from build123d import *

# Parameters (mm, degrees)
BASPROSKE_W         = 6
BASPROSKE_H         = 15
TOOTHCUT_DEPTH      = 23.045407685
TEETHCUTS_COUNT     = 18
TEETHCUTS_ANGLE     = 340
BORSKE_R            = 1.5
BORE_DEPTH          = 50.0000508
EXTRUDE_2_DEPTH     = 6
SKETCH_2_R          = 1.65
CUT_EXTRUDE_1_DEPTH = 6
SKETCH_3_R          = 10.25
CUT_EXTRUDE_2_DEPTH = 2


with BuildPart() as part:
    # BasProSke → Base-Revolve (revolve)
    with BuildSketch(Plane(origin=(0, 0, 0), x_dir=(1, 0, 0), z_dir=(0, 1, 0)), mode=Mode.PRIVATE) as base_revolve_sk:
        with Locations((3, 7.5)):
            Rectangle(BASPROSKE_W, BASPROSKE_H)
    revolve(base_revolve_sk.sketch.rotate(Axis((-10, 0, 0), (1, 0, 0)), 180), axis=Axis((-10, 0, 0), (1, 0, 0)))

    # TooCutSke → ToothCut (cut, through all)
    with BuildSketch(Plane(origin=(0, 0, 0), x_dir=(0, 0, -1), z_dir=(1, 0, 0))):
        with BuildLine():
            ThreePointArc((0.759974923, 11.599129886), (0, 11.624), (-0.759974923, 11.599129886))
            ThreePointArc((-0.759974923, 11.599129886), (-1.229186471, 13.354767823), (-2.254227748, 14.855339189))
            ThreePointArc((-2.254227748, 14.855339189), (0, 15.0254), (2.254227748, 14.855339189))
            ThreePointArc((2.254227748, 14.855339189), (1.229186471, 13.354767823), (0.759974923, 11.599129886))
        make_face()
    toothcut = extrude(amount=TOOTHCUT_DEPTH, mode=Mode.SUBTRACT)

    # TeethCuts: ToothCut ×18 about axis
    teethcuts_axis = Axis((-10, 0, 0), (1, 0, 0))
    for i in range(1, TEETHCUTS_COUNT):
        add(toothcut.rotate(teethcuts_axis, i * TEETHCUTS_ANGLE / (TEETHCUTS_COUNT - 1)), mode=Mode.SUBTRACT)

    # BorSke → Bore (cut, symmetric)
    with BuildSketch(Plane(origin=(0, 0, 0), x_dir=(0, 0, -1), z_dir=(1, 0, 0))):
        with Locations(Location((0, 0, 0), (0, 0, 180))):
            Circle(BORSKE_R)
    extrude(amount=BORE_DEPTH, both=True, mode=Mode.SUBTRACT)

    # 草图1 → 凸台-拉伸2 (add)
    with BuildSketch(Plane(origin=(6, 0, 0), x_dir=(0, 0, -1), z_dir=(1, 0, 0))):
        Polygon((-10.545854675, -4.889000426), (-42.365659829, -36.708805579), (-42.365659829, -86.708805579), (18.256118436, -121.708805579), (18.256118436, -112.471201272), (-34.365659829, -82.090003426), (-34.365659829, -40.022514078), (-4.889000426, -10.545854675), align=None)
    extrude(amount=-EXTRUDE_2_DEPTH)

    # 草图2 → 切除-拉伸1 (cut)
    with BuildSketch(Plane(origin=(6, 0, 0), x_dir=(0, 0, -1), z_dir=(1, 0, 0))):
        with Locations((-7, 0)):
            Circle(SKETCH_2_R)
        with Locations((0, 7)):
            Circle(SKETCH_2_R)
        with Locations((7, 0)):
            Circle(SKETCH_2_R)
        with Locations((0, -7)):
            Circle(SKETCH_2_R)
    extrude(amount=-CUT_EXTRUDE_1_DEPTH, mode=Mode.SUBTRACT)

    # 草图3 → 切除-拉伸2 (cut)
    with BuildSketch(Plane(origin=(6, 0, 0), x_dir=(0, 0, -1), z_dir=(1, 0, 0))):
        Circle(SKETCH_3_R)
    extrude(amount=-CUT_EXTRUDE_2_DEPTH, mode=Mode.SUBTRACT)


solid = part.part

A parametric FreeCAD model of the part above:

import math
import FreeCAD as App
import Part
import Sketcher
Q = App.Units.Quantity

doc = App.newDocument("Part")
body = doc.addObject("PartDesign::Body", "Body")

sketch1 = body.newObject("Sketcher::SketchObject", "Sketch")
sketch1.AttachmentSupport = (doc.getObject("XZ_Plane"), [""])
sketch1.MapMode = "FlatFace"
sketch1.addGeometry(Part.LineSegment(App.Vector(0, -15, 0), App.Vector(0, 0, 0)), False)
sketch1.addGeometry(Part.LineSegment(App.Vector(0, 0, 0), App.Vector(6, 0, 0)), False)
sketch1.addGeometry(Part.LineSegment(App.Vector(6, 0, 0), App.Vector(6, -15, 0)), False)
sketch1.addGeometry(Part.LineSegment(App.Vector(6, -15, 0), App.Vector(0, -15, 0)), False)
sketch1.addConstraint(Sketcher.Constraint("Coincident", 0, 2, 1, 1))
sketch1.addConstraint(Sketcher.Constraint("Coincident", 1, 2, 2, 1))
sketch1.addConstraint(Sketcher.Constraint("Coincident", 2, 2, 3, 1))
sketch1.addConstraint(Sketcher.Constraint("Coincident", 3, 2, 0, 1))
sketch1.addConstraint(Sketcher.Constraint("Vertical", 0))
sketch1.addConstraint(Sketcher.Constraint("Horizontal", 1))
sketch1.addConstraint(Sketcher.Constraint("Vertical", 2))
sketch1.addConstraint(Sketcher.Constraint("Horizontal", 3))
sketch1.addConstraint(Sketcher.Constraint("Coincident", 0, 2, -1, 1))
sketch1.addConstraint(Sketcher.Constraint("DistanceX", 1, 1, 1, 2, Q("6 mm")))
sketch1.addConstraint(Sketcher.Constraint("DistanceY", 0, 1, 0, 2, Q("15 mm")))
revolution = body.newObject("PartDesign::Revolution", "Revolution")
revolution.Profile = sketch1
revolution.ReferenceAxis = (sketch1, ["H_Axis"])
revolution.Angle = 360

sketch2 = body.newObject("Sketcher::SketchObject", "Sketch001")
sketch2.AttachmentSupport = (doc.getObject("YZ_Plane"), [""])
sketch2.MapMode = "FlatFace"
sketch2.addGeometry(Part.ArcOfCircle(Part.Circle(App.Vector(0, 0, 0), App.Vector(0, 0, 1), 11.624), math.radians(-3.748661), math.radians(3.748661)), False)
sketch2.addGeometry(Part.ArcOfCircle(Part.Circle(App.Vector(11.102561, -6.137095, 0), App.Vector(0, 0, 1), 5.4), math.radians(45.976059), math.radians(84.723789)), False)
sketch2.addGeometry(Part.ArcOfCircle(Part.Circle(App.Vector(0, 0, 0), App.Vector(0, 0, 1), 15.0254), math.radians(-8.628538), math.radians(8.628538)), False)
sketch2.addGeometry(Part.ArcOfCircle(Part.Circle(App.Vector(11.102561, 6.137095, 0), App.Vector(0, 0, 1), 5.4), math.radians(-84.723789), math.radians(-45.976059)), False)
sketch2.addConstraint(Sketcher.Constraint("Coincident", 0, 1, 1, 2))
sketch2.addConstraint(Sketcher.Constraint("Coincident", 1, 1, 2, 1))
sketch2.addConstraint(Sketcher.Constraint("Coincident", 2, 2, 3, 2))
sketch2.addConstraint(Sketcher.Constraint("Coincident", 3, 1, 0, 2))
sketch2.addConstraint(Sketcher.Constraint("Coincident", 0, 3, -1, 1))
sketch2.addConstraint(Sketcher.Constraint("Coincident", 2, 3, -1, 1))
sketch2.addConstraint(Sketcher.Constraint("Equal", 1, 3))
sketch2.addConstraint(Sketcher.Constraint("Symmetric", 1, 3, 3, 3, -1))
sketch2.addConstraint(Sketcher.Constraint("Radius", 1, Q("5.4 mm")))
sketch2.addConstraint(Sketcher.Constraint("Radius", 0, Q("11.624 mm")))
sketch2.addConstraint(Sketcher.Constraint("Radius", 2, Q("15.0254 mm")))
sketch2.addConstraint(Sketcher.Constraint("DistanceX", -1, 1, 1, 3, Q("11.102561 mm")))
sketch2.addConstraint(Sketcher.Constraint("DistanceX", -1, 1, 0, 1, Q("11.59913 mm")))
pocket1 = body.newObject("PartDesign::Pocket", "Pocket")
pocket1.Profile = sketch2
pocket1.Type = "ThroughAll"
pocket1.Reversed = True
doc.recompute()

polarpattern = body.newObject("PartDesign::PolarPattern", "PolarPattern")
polarpattern.Originals = [pocket1]
polarpattern.Axis = (doc.getObject("X_Axis"), [""])
polarpattern.Angle = 360
polarpattern.Occurrences = 18
body.Tip = polarpattern

sketch3 = body.newObject("Sketcher::SketchObject", "Sketch002")
sketch3.AttachmentSupport = (doc.getObject("YZ_Plane"), [""])
sketch3.MapMode = "FlatFace"
sketch3.addGeometry(Part.Circle(App.Vector(0, 0, 0), App.Vector(0, 0, 1), 1.5), False)
sketch3.addConstraint(Sketcher.Constraint("Coincident", 0, 3, -1, 1))
sketch3.addConstraint(Sketcher.Constraint("Diameter", 0, Q("3 mm")))
pocket2 = body.newObject("PartDesign::Pocket", "Pocket001")
pocket2.Profile = sketch3
pocket2.Length = 100.000102
pocket2.Midplane = True

sketch4 = body.newObject("Sketcher::SketchObject", "Sketch003")
sketch4.AttachmentSupport = (doc.getObject("YZ_Plane"), [""])
sketch4.MapMode = "FlatFace"
sketch4.AttachmentOffset = App.Placement(App.Vector(0, 0, 6), App.Rotation())
sketch4.addGeometry(Part.LineSegment(App.Vector(-4.889, 10.545855, 0), App.Vector(-36.708806, 42.36566, 0)), False)
sketch4.addGeometry(Part.LineSegment(App.Vector(-36.708806, 42.36566, 0), App.Vector(-86.708806, 42.36566, 0)), False)
sketch4.addGeometry(Part.LineSegment(App.Vector(-86.708806, 42.36566, 0), App.Vector(-121.708806, -18.256118, 0)), False)
sketch4.addGeometry(Part.LineSegment(App.Vector(-121.708806, -18.256118, 0), App.Vector(-112.471201, -18.256118, 0)), False)
sketch4.addGeometry(Part.LineSegment(App.Vector(-112.471201, -18.256118, 0), App.Vector(-82.090003, 34.36566, 0)), False)
sketch4.addGeometry(Part.LineSegment(App.Vector(-82.090003, 34.36566, 0), App.Vector(-40.022514, 34.36566, 0)), False)
sketch4.addGeometry(Part.LineSegment(App.Vector(-40.022514, 34.36566, 0), App.Vector(-10.545855, 4.889, 0)), False)
sketch4.addGeometry(Part.LineSegment(App.Vector(-10.545855, 4.889, 0), App.Vector(-4.889, 10.545855, 0)), False)
sketch4.addConstraint(Sketcher.Constraint("Coincident", 0, 2, 1, 1))
sketch4.addConstraint(Sketcher.Constraint("Coincident", 1, 2, 2, 1))
sketch4.addConstraint(Sketcher.Constraint("Coincident", 2, 2, 3, 1))
sketch4.addConstraint(Sketcher.Constraint("Coincident", 3, 2, 4, 1))
sketch4.addConstraint(Sketcher.Constraint("Coincident", 4, 2, 5, 1))
sketch4.addConstraint(Sketcher.Constraint("Coincident", 5, 2, 6, 1))
sketch4.addConstraint(Sketcher.Constraint("Coincident", 6, 2, 7, 1))
sketch4.addConstraint(Sketcher.Constraint("Coincident", 7, 2, 0, 1))
sketch4.addConstraint(Sketcher.Constraint("Horizontal", 1))
sketch4.addConstraint(Sketcher.Constraint("Horizontal", 3))
sketch4.addConstraint(Sketcher.Constraint("Horizontal", 5))
sketch4.addConstraint(Sketcher.Constraint("Parallel", 2, 4))
sketch4.addConstraint(Sketcher.Constraint("Parallel", 0, 6))
sketch4.addConstraint(Sketcher.Constraint("Perpendicular", 6, 7))
sketch4.addConstraint(Sketcher.Constraint("DistanceX", 1, 2, 1, 1, Q("50 mm")))
sketch4.addConstraint(Sketcher.Constraint("Angle", 0, Q("135 deg")))
sketch4.addConstraint(Sketcher.Constraint("Angle", 2, Q("-120 deg")))
sketch4.addConstraint(Sketcher.Constraint("Distance", 0, Q("45 mm")))
sketch4.addConstraint(Sketcher.Constraint("Distance", 2, Q("70 mm")))
sketch4.addConstraint(Sketcher.Constraint("Distance", 7, Q("8 mm")))
sketch4.addConstraint(Sketcher.Constraint("DistanceY", 4, 2, 1, 2, Q("8 mm")))
sketch4.addConstraint(Sketcher.Constraint("DistanceY", -1, 1, 6, 2, Q("4.889 mm")))
sketch4.addConstraint(Sketcher.Constraint("DistanceX", 7, 2, -1, 1, Q("4.889 mm")))
sketch4.addConstraint(Sketcher.Constraint("DistanceX", 5, 1, 5, 2, Q("42.067489 mm")))
pad1 = body.newObject("PartDesign::Pad", "Pad")
pad1.Profile = sketch4
pad1.Length = 6
pad1.Reversed = True

sketch5 = body.newObject("Sketcher::SketchObject", "Sketch004")
sketch5.AttachmentSupport = (doc.getObject("YZ_Plane"), [""])
sketch5.MapMode = "FlatFace"
sketch5.AttachmentOffset = App.Placement(App.Vector(0, 0, 6), App.Rotation())
sketch5.addGeometry(Part.Circle(App.Vector(0, 7, 0), App.Vector(0, 0, 1), 1.65), False)
sketch5.addGeometry(Part.Circle(App.Vector(7, 0, 0), App.Vector(0, 0, 1), 1.65), False)
sketch5.addGeometry(Part.Circle(App.Vector(0, -7, 0), App.Vector(0, 0, 1), 1.65), False)
sketch5.addGeometry(Part.Circle(App.Vector(-7, 0, 0), App.Vector(0, 0, 1), 1.65), False)
sketch5.addConstraint(Sketcher.Constraint("Equal", 0, 1))
sketch5.addConstraint(Sketcher.Constraint("Equal", 1, 2))
sketch5.addConstraint(Sketcher.Constraint("Equal", 2, 3))
sketch5.addConstraint(Sketcher.Constraint("Symmetric", 0, 3, 2, 3, -1, 1))
sketch5.addConstraint(Sketcher.Constraint("Symmetric", 1, 3, 3, 3, -1, 1))
sketch5.addConstraint(Sketcher.Constraint("PointOnObject", 0, 3, -2))
sketch5.addConstraint(Sketcher.Constraint("PointOnObject", 1, 3, -1))
sketch5.addConstraint(Sketcher.Constraint("Diameter", 0, Q("3.3 mm")))
sketch5.addConstraint(Sketcher.Constraint("DistanceY", -1, 1, 0, 3, Q("7 mm")))
sketch5.addConstraint(Sketcher.Constraint("DistanceX", -1, 1, 1, 3, Q("7 mm")))
pocket3 = body.newObject("PartDesign::Pocket", "Pocket002")
pocket3.Profile = sketch5
pocket3.Length = 6

sketch6 = body.newObject("Sketcher::SketchObject", "Sketch005")
sketch6.AttachmentSupport = (doc.getObject("YZ_Plane"), [""])
sketch6.MapMode = "FlatFace"
sketch6.AttachmentOffset = App.Placement(App.Vector(0, 0, 6), App.Rotation())
sketch6.addGeometry(Part.Circle(App.Vector(0, 0, 0), App.Vector(0, 0, 1), 10.25), False)
sketch6.addConstraint(Sketcher.Constraint("Coincident", 0, 3, -1, 1))
sketch6.addConstraint(Sketcher.Constraint("Diameter", 0, Q("20.5 mm")))
pocket4 = body.newObject("PartDesign::Pocket", "Pocket003")
pocket4.Profile = sketch6
pocket4.Length = 2

doc.recompute()
